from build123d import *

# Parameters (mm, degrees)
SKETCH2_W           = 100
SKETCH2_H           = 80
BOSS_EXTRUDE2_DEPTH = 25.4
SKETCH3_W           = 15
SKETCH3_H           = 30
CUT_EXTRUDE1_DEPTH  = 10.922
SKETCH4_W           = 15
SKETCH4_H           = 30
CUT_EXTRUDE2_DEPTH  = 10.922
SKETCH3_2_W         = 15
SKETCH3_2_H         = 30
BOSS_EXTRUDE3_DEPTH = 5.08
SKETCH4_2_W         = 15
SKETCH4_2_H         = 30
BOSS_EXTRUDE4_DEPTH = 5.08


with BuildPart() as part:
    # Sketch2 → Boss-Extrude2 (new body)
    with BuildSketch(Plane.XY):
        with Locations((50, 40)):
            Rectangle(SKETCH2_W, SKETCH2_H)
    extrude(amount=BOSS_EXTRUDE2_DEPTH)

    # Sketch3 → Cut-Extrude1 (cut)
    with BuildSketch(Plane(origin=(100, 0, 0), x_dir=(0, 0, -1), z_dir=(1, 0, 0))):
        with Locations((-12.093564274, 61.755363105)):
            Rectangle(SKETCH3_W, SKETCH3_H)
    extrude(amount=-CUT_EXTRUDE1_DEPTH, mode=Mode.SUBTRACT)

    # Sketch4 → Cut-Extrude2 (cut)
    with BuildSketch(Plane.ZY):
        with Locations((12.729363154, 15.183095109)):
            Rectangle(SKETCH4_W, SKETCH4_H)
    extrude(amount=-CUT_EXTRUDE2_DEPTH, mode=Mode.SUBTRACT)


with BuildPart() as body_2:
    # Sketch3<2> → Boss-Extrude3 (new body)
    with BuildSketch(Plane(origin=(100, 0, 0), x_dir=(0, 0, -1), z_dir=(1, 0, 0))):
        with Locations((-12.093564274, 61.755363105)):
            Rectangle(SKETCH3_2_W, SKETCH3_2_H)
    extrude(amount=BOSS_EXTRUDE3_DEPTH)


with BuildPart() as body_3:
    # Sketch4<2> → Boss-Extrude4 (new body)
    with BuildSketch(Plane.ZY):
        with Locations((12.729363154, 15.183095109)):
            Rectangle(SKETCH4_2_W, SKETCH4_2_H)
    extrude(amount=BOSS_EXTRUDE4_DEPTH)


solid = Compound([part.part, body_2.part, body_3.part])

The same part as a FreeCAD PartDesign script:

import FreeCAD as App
import Part
import Sketcher

V = App.Vector


def add_polygon(sketch, points):
    """Adds a closed chain of lines whose ends are joined by coincident constraints."""
    first, n = sketch.GeometryCount, len(points)
    for a, b in zip(points, points[1:] + points[:1]):
        sketch.addGeometry(Part.LineSegment(App.Vector(*a, 0), App.Vector(*b, 0)), False)
    for i in range(n):
        sketch.addConstraint(Sketcher.Constraint("Coincident", first + i, 2, first + (i + 1) % n, 1))

doc = App.newDocument("Part")
body = doc.addObject("PartDesign::Body", "Body")

# Sketch on XY plane
sketch1 = doc.addObject("Sketcher::SketchObject", "Sketch")
body.addObject(sketch1)
sketch1.AttachmentSupport = (doc.XY_Plane, [""])
sketch1.MapMode = "FlatFace"
add_polygon(sketch1, [(0, 80), (0, 0), (100, 0), (100, 80)])  # lines 0-3
sketch1.addConstraint([
    Sketcher.Constraint("Vertical", 0),
    Sketcher.Constraint("Horizontal", 1),
    Sketcher.Constraint("Vertical", 2),
    Sketcher.Constraint("Horizontal", 3),
    Sketcher.Constraint("Coincident", 0, 2, -1, 1),
    Sketcher.Constraint("DistanceX", 1, 1, 1, 2, 100.0),
    Sketcher.Constraint("DistanceY", 0, 2, 0, 1, 80.0),
])
pad1 = doc.addObject("PartDesign::Pad", "Pad")
body.addObject(pad1)
pad1.Profile = sketch1
pad1.Length = 25.4

# Sketch on YZ plane
sketch2 = doc.addObject("Sketcher::SketchObject", "Sketch001")
body.addObject(sketch2)
sketch2.AttachmentSupport = (doc.YZ_Plane, [""])
sketch2.MapMode = "FlatFace"
sketch2.AttachmentOffset = App.Placement(V(0, 0, 100), App.Rotation())
add_polygon(sketch2, [(76.755363, 19.593564), (46.755363, 19.593564), (46.755363, 4.593564), (76.755363, 4.593564)])  # lines 0-3
sketch2.addConstraint([
    Sketcher.Constraint("Horizontal", 0),
    Sketcher.Constraint("Vertical", 1),
    Sketcher.Constraint("Horizontal", 2),
    Sketcher.Constraint("Vertical", 3),
    Sketcher.Constraint("DistanceX", 0, 2, 0, 1, 30.0),
    Sketcher.Constraint("DistanceY", 1, 2, 1, 1, 15.0),
    Sketcher.Constraint("DistanceX", -1, 1, 0, 2, 46.755363),
    Sketcher.Constraint("DistanceY", -1, 1, 0, 2, 19.593564),
])
pocket1 = doc.addObject("PartDesign::Pocket", "Pocket")
body.addObject(pocket1)
pocket1.Profile = sketch2
pocket1.Length = 10.922

# Sketch on YZ plane
sketch3 = doc.addObject("Sketcher::SketchObject", "Sketch002")
body.addObject(sketch3)
sketch3.AttachmentSupport = (doc.YZ_Plane, [""])
sketch3.MapMode = "FlatFace"
add_polygon(sketch3, [(30.183095, 5.229363), (0.183095, 5.229363), (0.183095, 20.229363), (30.183095, 20.229363)])  # lines 0-3
sketch3.addConstraint([
    Sketcher.Constraint("Horizontal", 0),
    Sketcher.Constraint("Vertical", 1),
    Sketcher.Constraint("Horizontal", 2),
    Sketcher.Constraint("Vertical", 3),
    Sketcher.Constraint("DistanceX", 0, 2, 0, 1, 30.0),
    Sketcher.Constraint("DistanceY", 1, 1, 1, 2, 15.0),
    Sketcher.Constraint("DistanceX", -1, 1, 0, 2, 0.183095),
    Sketcher.Constraint("DistanceY", -1, 1, 0, 2, 5.229363),
])
pocket2 = doc.addObject("PartDesign::Pocket", "Pocket001")
body.addObject(pocket2)
pocket2.Profile = sketch3
pocket2.Length = 10.922
pocket2.Reversed = True
body2 = doc.addObject("PartDesign::Body", "Body001")

# Sketch on YZ plane
sketch4 = doc.addObject("Sketcher::SketchObject", "Sketch003")
body2.addObject(sketch4)
sketch4.AttachmentSupport = (doc.getObject("YZ_Plane001"), [""])
sketch4.MapMode = "FlatFace"
sketch4.AttachmentOffset = App.Placement(V(0, 0, 100), App.Rotation())
add_polygon(sketch4, [(76.755363, 19.593564), (46.755363, 19.593564), (46.755363, 4.593564), (76.755363, 4.593564)])  # lines 0-3
sketch4.addConstraint([
    Sketcher.Constraint("Horizontal", 0),
    Sketcher.Constraint("Vertical", 1),
    Sketcher.Constraint("Horizontal", 2),
    Sketcher.Constraint("Vertical", 3),
    Sketcher.Constraint("DistanceX", 0, 2, 0, 1, 30.0),
    Sketcher.Constraint("DistanceY", 1, 2, 1, 1, 15.0),
    Sketcher.Constraint("DistanceX", -1, 1, 0, 2, 46.755363),
    Sketcher.Constraint("DistanceY", -1, 1, 0, 2, 19.593564),
])
pad2 = doc.addObject("PartDesign::Pad", "Pad001")
body2.addObject(pad2)
pad2.Profile = sketch4
pad2.Length = 5.08
body3 = doc.addObject("PartDesign::Body", "Body002")

# Sketch on YZ plane
sketch5 = doc.addObject("Sketcher::SketchObject", "Sketch004")
body3.addObject(sketch5)
sketch5.AttachmentSupport = (doc.getObject("YZ_Plane002"), [""])
sketch5.MapMode = "FlatFace"
add_polygon(sketch5, [(30.183095, 5.229363), (0.183095, 5.229363), (0.183095, 20.229363), (30.183095, 20.229363)])  # lines 0-3
sketch5.addConstraint([
    Sketcher.Constraint("Horizontal", 0),
    Sketcher.Constraint("Vertical", 1),
    Sketcher.Constraint("Horizontal", 2),
    Sketcher.Constraint("Vertical", 3),
    Sketcher.Constraint("DistanceX", 0, 2, 0, 1, 30.0),
    Sketcher.Constraint("DistanceY", 1, 1, 1, 2, 15.0),
    Sketcher.Constraint("DistanceX", -1, 1, 0, 2, 0.183095),
    Sketcher.Constraint("DistanceY", -1, 1, 0, 2, 5.229363),
])
pad3 = doc.addObject("PartDesign::Pad", "Pad002")
body3.addObject(pad3)
pad3.Profile = sketch5
pad3.Length = 5.08
pad3.Reversed = True

doc.recompute()
